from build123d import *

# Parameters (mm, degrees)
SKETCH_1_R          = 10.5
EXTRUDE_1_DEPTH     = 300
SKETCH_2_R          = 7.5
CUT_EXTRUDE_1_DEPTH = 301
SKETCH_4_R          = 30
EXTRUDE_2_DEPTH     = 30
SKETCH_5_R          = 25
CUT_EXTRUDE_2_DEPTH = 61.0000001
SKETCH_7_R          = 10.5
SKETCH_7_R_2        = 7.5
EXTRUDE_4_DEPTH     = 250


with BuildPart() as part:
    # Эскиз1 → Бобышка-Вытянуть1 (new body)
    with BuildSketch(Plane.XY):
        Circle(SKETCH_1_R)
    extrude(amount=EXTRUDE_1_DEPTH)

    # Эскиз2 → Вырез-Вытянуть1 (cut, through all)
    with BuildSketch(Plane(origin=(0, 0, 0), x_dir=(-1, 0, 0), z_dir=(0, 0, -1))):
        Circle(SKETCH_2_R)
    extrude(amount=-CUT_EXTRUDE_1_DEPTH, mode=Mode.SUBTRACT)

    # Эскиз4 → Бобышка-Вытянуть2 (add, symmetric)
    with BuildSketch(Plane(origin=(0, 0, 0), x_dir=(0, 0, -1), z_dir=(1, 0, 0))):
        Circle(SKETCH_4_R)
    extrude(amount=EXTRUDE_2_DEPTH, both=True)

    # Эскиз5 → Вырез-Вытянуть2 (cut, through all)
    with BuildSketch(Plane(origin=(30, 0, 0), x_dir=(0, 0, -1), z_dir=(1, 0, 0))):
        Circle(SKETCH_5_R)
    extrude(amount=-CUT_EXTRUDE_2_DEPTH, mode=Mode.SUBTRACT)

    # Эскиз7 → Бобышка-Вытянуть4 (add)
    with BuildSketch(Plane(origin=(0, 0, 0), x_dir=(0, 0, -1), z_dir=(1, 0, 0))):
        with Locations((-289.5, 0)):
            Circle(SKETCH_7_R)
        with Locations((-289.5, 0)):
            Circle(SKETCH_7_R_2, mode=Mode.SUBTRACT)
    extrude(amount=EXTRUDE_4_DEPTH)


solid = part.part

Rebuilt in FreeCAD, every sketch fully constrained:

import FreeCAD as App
import Part
import Sketcher

V = App.Vector

doc = App.newDocument("Part")
body = doc.addObject("PartDesign::Body", "Body")

sketch1 = body.newObject("Sketcher::SketchObject", "Sketch")
sketch1.AttachmentSupport = (doc.getObject("XY_Plane"), [""])
sketch1.MapMode = "FlatFace"
sketch1.addGeometry(Part.Circle(V(0, 0, 0), V(0, 0, 1), 10.5), False)
sketch1.addConstraint([
    Sketcher.Constraint("Coincident", 0, 3, -1, 1),
    Sketcher.Constraint("Diameter", 0, 21.0),
])
pad1 = body.newObject("PartDesign::Pad", "Pad")
pad1.Profile = sketch1
pad1.Length = 300

sketch2 = body.newObject("Sketcher::SketchObject", "Sketch001")
sketch2.AttachmentSupport = (doc.getObject("XY_Plane"), [""])
sketch2.MapMode = "FlatFace"
sketch2.addGeometry(Part.Circle(V(0, 0, 0), V(0, 0, 1), 7.5), False)
sketch2.addConstraint([
    Sketcher.Constraint("Coincident", 0, 3, -1, 1),
    Sketcher.Constraint("Diameter", 0, 15.0),
])
pocket1 = body.newObject("PartDesign::Pocket", "Pocket")
pocket1.Profile = sketch2
pocket1.Type = "ThroughAll"
pocket1.Reversed = True

sketch3 = body.newObject("Sketcher::SketchObject", "Sketch002")
sketch3.AttachmentSupport = (doc.getObject("YZ_Plane"), [""])
sketch3.MapMode = "FlatFace"
sketch3.addGeometry(Part.Circle(V(0, 0, 0), V(0, 0, 1), 30), False)
sketch3.addConstraint([
    Sketcher.Constraint("Coincident", 0, 3, -1, 1),
    Sketcher.Constraint("Diameter", 0, 60.0),
])
pad2 = body.newObject("PartDesign::Pad", "Pad001")
pad2.Profile = sketch3
pad2.Length = 60
pad2.Midplane = True

sketch4 = body.newObject("Sketcher::SketchObject", "Sketch003")
sketch4.AttachmentSupport = (doc.getObject("YZ_Plane"), [""])
sketch4.MapMode = "FlatFace"
sketch4.AttachmentOffset = App.Placement(V(0, 0, 30), App.Rotation())
sketch4.addGeometry(Part.Circle(V(0, 0, 0), V(0, 0, 1), 25), False)
sketch4.addConstraint([
    Sketcher.Constraint("Coincident", 0, 3, -1, 1),
    Sketcher.Constraint("Diameter", 0, 50.0),
])
pocket2 = body.newObject("PartDesign::Pocket", "Pocket001")
pocket2.Profile = sketch4
pocket2.Type = "ThroughAll"

sketch5 = body.newObject("Sketcher::SketchObject", "Sketch004")
sketch5.AttachmentSupport = (doc.getObject("YZ_Plane"), [""])
sketch5.MapMode = "FlatFace"
sketch5.addGeometry([
    Part.Circle(V(0, 289.5, 0), V(0, 0, 1), 10.5),
    Part.Circle(V(0, 289.5, 0), V(0, 0, 1), 7.5),
], False)
sketch5.addConstraint([
    Sketcher.Constraint("Coincident", 1, 3, 0, 3),
    Sketcher.Constraint("PointOnObject", 0, 3, -2),
    Sketcher.Constraint("Diameter", 0, 21.0),
    Sketcher.Constraint("Diameter", 1, 15.0),
    Sketcher.Constraint("DistanceY", -1, 1, 0, 3, 289.5),
])
pad3 = body.newObject("PartDesign::Pad", "Pad002")
pad3.Profile = sketch5
pad3.Length = 250

doc.recompute()
